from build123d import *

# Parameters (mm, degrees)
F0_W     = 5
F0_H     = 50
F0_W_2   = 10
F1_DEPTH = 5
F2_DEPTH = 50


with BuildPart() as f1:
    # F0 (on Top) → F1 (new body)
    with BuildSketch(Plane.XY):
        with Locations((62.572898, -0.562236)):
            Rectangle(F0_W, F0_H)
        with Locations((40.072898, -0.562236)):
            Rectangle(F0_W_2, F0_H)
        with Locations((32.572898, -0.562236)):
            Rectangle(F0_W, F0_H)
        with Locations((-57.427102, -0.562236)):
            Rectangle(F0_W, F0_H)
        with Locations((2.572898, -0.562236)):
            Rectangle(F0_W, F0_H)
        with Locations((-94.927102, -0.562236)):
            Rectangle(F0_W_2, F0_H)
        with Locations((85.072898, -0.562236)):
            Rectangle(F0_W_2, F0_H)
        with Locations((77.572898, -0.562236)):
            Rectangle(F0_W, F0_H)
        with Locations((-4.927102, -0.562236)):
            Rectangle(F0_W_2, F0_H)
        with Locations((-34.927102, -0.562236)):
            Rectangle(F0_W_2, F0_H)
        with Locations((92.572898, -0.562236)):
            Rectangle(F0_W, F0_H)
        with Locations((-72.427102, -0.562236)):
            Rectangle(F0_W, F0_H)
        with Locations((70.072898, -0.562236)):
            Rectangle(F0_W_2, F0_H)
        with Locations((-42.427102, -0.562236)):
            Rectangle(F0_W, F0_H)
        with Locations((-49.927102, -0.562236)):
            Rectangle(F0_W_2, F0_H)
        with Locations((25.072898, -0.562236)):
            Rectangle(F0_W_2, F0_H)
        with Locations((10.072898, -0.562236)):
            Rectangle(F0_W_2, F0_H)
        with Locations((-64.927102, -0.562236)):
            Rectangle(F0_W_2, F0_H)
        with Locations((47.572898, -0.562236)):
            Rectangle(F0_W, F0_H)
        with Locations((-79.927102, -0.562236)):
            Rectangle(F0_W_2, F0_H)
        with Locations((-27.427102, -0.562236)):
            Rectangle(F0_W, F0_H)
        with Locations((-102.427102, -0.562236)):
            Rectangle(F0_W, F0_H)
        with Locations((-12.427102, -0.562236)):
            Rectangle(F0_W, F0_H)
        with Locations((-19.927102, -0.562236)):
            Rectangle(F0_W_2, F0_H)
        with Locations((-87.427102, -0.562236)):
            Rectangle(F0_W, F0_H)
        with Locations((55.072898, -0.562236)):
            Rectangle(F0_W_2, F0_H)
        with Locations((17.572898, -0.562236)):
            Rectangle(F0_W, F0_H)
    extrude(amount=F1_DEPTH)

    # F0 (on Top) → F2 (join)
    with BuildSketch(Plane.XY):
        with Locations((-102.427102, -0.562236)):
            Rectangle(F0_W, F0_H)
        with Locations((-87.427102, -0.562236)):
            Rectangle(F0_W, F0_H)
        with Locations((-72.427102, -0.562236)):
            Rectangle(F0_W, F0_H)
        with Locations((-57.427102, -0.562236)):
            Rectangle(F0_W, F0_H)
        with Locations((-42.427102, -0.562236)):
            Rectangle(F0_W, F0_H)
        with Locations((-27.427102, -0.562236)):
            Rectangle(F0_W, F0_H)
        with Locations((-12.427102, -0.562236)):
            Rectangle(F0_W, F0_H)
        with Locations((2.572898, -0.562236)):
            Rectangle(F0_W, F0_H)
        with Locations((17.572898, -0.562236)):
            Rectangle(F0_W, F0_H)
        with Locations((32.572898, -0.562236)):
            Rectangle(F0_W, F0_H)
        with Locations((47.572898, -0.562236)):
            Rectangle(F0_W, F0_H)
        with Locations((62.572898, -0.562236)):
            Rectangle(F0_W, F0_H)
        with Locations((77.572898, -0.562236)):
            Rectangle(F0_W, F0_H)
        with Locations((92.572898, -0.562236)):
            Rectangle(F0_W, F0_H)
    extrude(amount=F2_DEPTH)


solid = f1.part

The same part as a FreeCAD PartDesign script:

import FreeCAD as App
import Part
import Sketcher
from FreeCAD import Vector

doc = App.newDocument("Part")
params = doc.addObject("Spreadsheet::Sheet", "Params")
for row, (alias, value) in enumerate([
    ("sketch1_width", "200 mm"),
    ("sketch1_height", "50 mm"),
    ("pad1_length", "5 mm"),
    ("sketch2_width", "5 mm"),
    ("sketch2_height", "50 mm"),
    ("pad2_length", "50 mm"),
], start=1):
    params.set(f"A{row}", alias)
    params.set(f"B{row}", "=" + value)
    params.setAlias(f"B{row}", alias)

body = doc.addObject("PartDesign::Body", "Body")

# Sketch on XY plane
sketch1 = doc.addObject("Sketcher::SketchObject", "Sketch")
body.addObject(sketch1)
sketch1.AttachmentSupport = (doc.XY_Plane, [""])
sketch1.MapMode = "FlatFace"
sketch1.addGeometry(Part.LineSegment(Vector(95.072898, -25.562236, 0), Vector(95.072898, 24.437764, 0)), False)
sketch1.addGeometry(Part.LineSegment(Vector(95.072898, 24.437764, 0), Vector(-104.927102, 24.437764, 0)), False)
sketch1.addGeometry(Part.LineSegment(Vector(-104.927102, 24.437764, 0), Vector(-104.927102, -25.562236, 0)), False)
sketch1.addGeometry(Part.LineSegment(Vector(-104.927102, -25.562236, 0), Vector(95.072898, -25.562236, 0)), False)
sketch1.addConstraint(Sketcher.Constraint("Coincident", 0, 2, 1, 1))
sketch1.addConstraint(Sketcher.Constraint("Coincident", 1, 2, 2, 1))
sketch1.addConstraint(Sketcher.Constraint("Coincident", 2, 2, 3, 1))
sketch1.addConstraint(Sketcher.Constraint("Coincident", 3, 2, 0, 1))
sketch1.addConstraint(Sketcher.Constraint("Vertical", 0))
sketch1.addConstraint(Sketcher.Constraint("Horizontal", 1))
sketch1.addConstraint(Sketcher.Constraint("Vertical", 2))
sketch1.addConstraint(Sketcher.Constraint("Horizontal", 3))
sketch1.addConstraint(Sketcher.Constraint("DistanceX", 1, 2, 1, 1, 200.0))
sketch1.addConstraint(Sketcher.Constraint("DistanceY", 0, 1, 0, 2, 50.0))
sketch1.addConstraint(Sketcher.Constraint("DistanceX", -1, 1, 0, 2, 95.072898))
sketch1.addConstraint(Sketcher.Constraint("DistanceY", -1, 1, 0, 2, 24.437764))
sketch1.setExpression("Constraints[8]", "Params.sketch1_width")
sketch1.setExpression("Constraints[9]", "Params.sketch1_height")
pad1 = doc.addObject("PartDesign::Pad", "Pad")
body.addObject(pad1)
pad1.Profile = sketch1
pad1.setExpression("Length", "Params.pad1_length")

# Sketch on XY plane
sketch2 = doc.addObject("Sketcher::SketchObject", "Sketch001")
body.addObject(sketch2)
sketch2.AttachmentSupport = (doc.XY_Plane, [""])
sketch2.MapMode = "FlatFace"
sketch2.addGeometry(Part.LineSegment(Vector(-104.927102, 24.437764, 0), Vector(-104.927102, -25.562236, 0)), False)
sketch2.addGeometry(Part.LineSegment(Vector(-104.927102, -25.562236, 0), Vector(-99.927102, -25.562236, 0)), False)
sketch2.addGeometry(Part.LineSegment(Vector(-99.927102, -25.562236, 0), Vector(-99.927102, 24.437764, 0)), False)
sketch2.addGeometry(Part.LineSegment(Vector(-99.927102, 24.437764, 0), Vector(-104.927102, 24.437764, 0)), False)
sketch2.addGeometry(Part.LineSegment(Vector(-89.927102, 24.437764, 0), Vector(-89.927102, -25.562236, 0)), False)
sketch2.addGeometry(Part.LineSegment(Vector(-89.927102, -25.562236, 0), Vector(-84.927102, -25.562236, 0)), False)
sketch2.addGeometry(Part.LineSegment(Vector(-84.927102, -25.562236, 0), Vector(-84.927102, 24.437764, 0)), False)
sketch2.addGeometry(Part.LineSegment(Vector(-84.927102, 24.437764, 0), Vector(-89.927102, 24.437764, 0)), False)
sketch2.addGeometry(Part.LineSegment(Vector(-74.927102, 24.437764, 0), Vector(-74.927102, -25.562236, 0)), False)
sketch2.addGeometry(Part.LineSegment(Vector(-74.927102, -25.562236, 0), Vector(-69.927102, -25.562236, 0)), False)
sketch2.addGeometry(Part.LineSegment(Vector(-69.927102, -25.562236, 0), Vector(-69.927102, 24.437764, 0)), False)
sketch2.addGeometry(Part.LineSegment(Vector(-69.927102, 24.437764, 0), Vector(-74.927102, 24.437764, 0)), False)
sketch2.addGeometry(Part.LineSegment(Vector(-59.927102, 24.437764, 0), Vector(-59.927102, -25.562236, 0)), False)
sketch2.addGeometry(Part.LineSegment(Vector(-59.927102, -25.562236, 0), Vector(-54.927102, -25.562236, 0)), False)
sketch2.addGeometry(Part.LineSegment(Vector(-54.927102, -25.562236, 0), Vector(-54.927102, 24.437764, 0)), False)
sketch2.addGeometry(Part.LineSegment(Vector(-54.927102, 24.437764, 0), Vector(-59.927102, 24.437764, 0)), False)
sketch2.addGeometry(Part.LineSegment(Vector(-44.927102, 24.437764, 0), Vector(-44.927102, -25.562236, 0)), False)
sketch2.addGeometry(Part.LineSegment(Vector(-44.927102, -25.562236, 0), Vector(-39.927102, -25.562236, 0)), False)
sketch2.addGeometry(Part.LineSegment(Vector(-39.927102, -25.562236, 0), Vector(-39.927102, 24.437764, 0)), False)
sketch2.addGeometry(Part.LineSegment(Vector(-39.927102, 24.437764, 0), Vector(-44.927102, 24.437764, 0)), False)
sketch2.addGeometry(Part.LineSegment(Vector(-29.927102, 24.437764, 0), Vector(-29.927102, -25.562236, 0)), False)
sketch2.addGeometry(Part.LineSegment(Vector(-29.927102, -25.562236, 0), Vector(-24.927102, -25.562236, 0)), False)
sketch2.addGeometry(Part.LineSegment(Vector(-24.927102, -25.562236, 0), Vector(-24.927102, 24.437764, 0)), False)
sketch2.addGeometry(Part.LineSegment(Vector(-24.927102, 24.437764, 0), Vector(-29.927102, 24.437764, 0)), False)
sketch2.addGeometry(Part.LineSegment(Vector(-14.927102, 24.437764, 0), Vector(-14.927102, -25.562236, 0)), False)
sketch2.addGeometry(Part.LineSegment(Vector(-14.927102, -25.562236, 0), Vector(-9.927102, -25.562236, 0)), False)
sketch2.addGeometry(Part.LineSegment(Vector(-9.927102, -25.562236, 0), Vector(-9.927102, 24.437764, 0)), False)
sketch2.addGeometry(Part.LineSegment(Vector(-9.927102, 24.437764, 0), Vector(-14.927102, 24.437764, 0)), False)
sketch2.addGeometry(Part.LineSegment(Vector(0.072898, 24.437764, 0), Vector(0.072898, -25.562236, 0)), False)
sketch2.addGeometry(Part.LineSegment(Vector(0.072898, -25.562236, 0), Vector(5.072898, -25.562236, 0)), False)
sketch2.addGeometry(Part.LineSegment(Vector(5.072898, -25.562236, 0), Vector(5.072898, 24.437764, 0)), False)
sketch2.addGeometry(Part.LineSegment(Vector(5.072898, 24.437764, 0), Vector(0.072898, 24.437764, 0)), False)
sketch2.addGeometry(Part.LineSegment(Vector(15.072898, 24.437764, 0), Vector(15.072898, -25.562236, 0)), False)
sketch2.addGeometry(Part.LineSegment(Vector(15.072898, -25.562236, 0), Vector(20.072898, -25.562236, 0)), False)
sketch2.addGeometry(Part.LineSegment(Vector(20.072898, -25.562236, 0), Vector(20.072898, 24.437764, 0)), False)
sketch2.addGeometry(Part.LineSegment(Vector(20.072898, 24.437764, 0), Vector(15.072898, 24.437764, 0)), False)
sketch2.addGeometry(Part.LineSegment(Vector(30.072898, 24.437764, 0), Vector(30.072898, -25.562236, 0)), False)
sketch2.addGeometry(Part.LineSegment(Vector(30.072898, -25.562236, 0), Vector(35.072898, -25.562236, 0)), False)
sketch2.addGeometry(Part.LineSegment(Vector(35.072898, -25.562236, 0), Vector(35.072898, 24.437764, 0)), False)
sketch2.addGeometry(Part.LineSegment(Vector(35.072898, 24.437764, 0), Vector(30.072898, 24.437764, 0)), False)
sketch2.addGeometry(Part.LineSegment(Vector(45.072898, 24.437764, 0), Vector(45.072898, -25.562236, 0)), False)
sketch2.addGeometry(Part.LineSegment(Vector(45.072898, -25.562236, 0), Vector(50.072898, -25.562236, 0)), False)
sketch2.addGeometry(Part.LineSegment(Vector(50.072898, -25.562236, 0), Vector(50.072898, 24.437764, 0)), False)
sketch2.addGeometry(Part.LineSegment(Vector(50.072898, 24.437764, 0), Vector(45.072898, 24.437764, 0)), False)
sketch2.addGeometry(Part.LineSegment(Vector(60.072898, 24.437764, 0), Vector(60.072898, -25.562236, 0)), False)
sketch2.addGeometry(Part.LineSegment(Vector(60.072898, -25.562236, 0), Vector(65.072898, -25.562236, 0)), False)
sketch2.addGeometry(Part.LineSegment(Vector(65.072898, -25.562236, 0), Vector(65.072898, 24.437764, 0)), False)
sketch2.addGeometry(Part.LineSegment(Vector(65.072898, 24.437764, 0), Vector(60.072898, 24.437764, 0)), False)
sketch2.addGeometry(Part.LineSegment(Vector(75.072898, 24.437764, 0), Vector(75.072898, -25.562236, 0)), False)
sketch2.addGeometry(Part.LineSegment(Vector(75.072898, -25.562236, 0), Vector(80.072898, -25.562236, 0)), False)
sketch2.addGeometry(Part.LineSegment(Vector(80.072898, -25.562236, 0), Vector(80.072898, 24.437764, 0)), False)
sketch2.addGeometry(Part.LineSegment(Vector(80.072898, 24.437764, 0), Vector(75.072898, 24.437764, 0)), False)
sketch2.addGeometry(Part.LineSegment(Vector(90.072898, 24.437764, 0), Vector(90.072898, -25.562236, 0)), False)
sketch2.addGeometry(Part.LineSegment(Vector(90.072898, -25.562236, 0), Vector(95.072898, -25.562236, 0)), False)
sketch2.addGeometry(Part.LineSegment(Vector(95.072898, -25.562236, 0), Vector(95.072898, 24.437764, 0)), False)
sketch2.addGeometry(Part.LineSegment(Vector(95.072898, 24.437764, 0), Vector(90.072898, 24.437764, 0)), False)
sketch2.addConstraint(Sketcher.Constraint("Coincident", 0, 2, 1, 1))
sketch2.addConstraint(Sketcher.Constraint("Coincident", 1, 2, 2, 1))
sketch2.addConstraint(Sketcher.Constraint("Coincident", 2, 2, 3, 1))
sketch2.addConstraint(Sketcher.Constraint("Coincident", 3, 2, 0, 1))
sketch2.addConstraint(Sketcher.Constraint("Coincident", 4, 2, 5, 1))
sketch2.addConstraint(Sketcher.Constraint("Coincident", 5, 2, 6, 1))
sketch2.addConstraint(Sketcher.Constraint("Coincident", 6, 2, 7, 1))
sketch2.addConstraint(Sketcher.Constraint("Coincident", 7, 2, 4, 1))
sketch2.addConstraint(Sketcher.Constraint("Coincident", 8, 2, 9, 1))
sketch2.addConstraint(Sketcher.Constraint("Coincident", 9, 2, 10, 1))
sketch2.addConstraint(Sketcher.Constraint("Coincident", 10, 2, 11, 1))
sketch2.addConstraint(Sketcher.Constraint("Coincident", 11, 2, 8, 1))
sketch2.addConstraint(Sketcher.Constraint("Coincident", 12, 2, 13, 1))
sketch2.addConstraint(Sketcher.Constraint("Coincident", 13, 2, 14, 1))
sketch2.addConstraint(Sketcher.Constraint("Coincident", 14, 2, 15, 1))
sketch2.addConstraint(Sketcher.Constraint("Coincident", 15, 2, 12, 1))
sketch2.addConstraint(Sketcher.Constraint("Coincident", 16, 2, 17, 1))
sketch2.addConstraint(Sketcher.Constraint("Coincident", 17, 2, 18, 1))
sketch2.addConstraint(Sketcher.Constraint("Coincident", 18, 2, 19, 1))
sketch2.addConstraint(Sketcher.Constraint("Coincident", 19, 2, 16, 1))
sketch2.addConstraint(Sketcher.Constraint("Coincident", 20, 2, 21, 1))
sketch2.addConstraint(Sketcher.Constraint("Coincident", 21, 2, 22, 1))
sketch2.addConstraint(Sketcher.Constraint("Coincident", 22, 2, 23, 1))
sketch2.addConstraint(Sketcher.Constraint("Coincident", 23, 2, 20, 1))
sketch2.addConstraint(Sketcher.Constraint("Coincident", 24, 2, 25, 1))
sketch2.addConstraint(Sketcher.Constraint("Coincident", 25, 2, 26, 1))
sketch2.addConstraint(Sketcher.Constraint("Coincident", 26, 2, 27, 1))
sketch2.addConstraint(Sketcher.Constraint("Coincident", 27, 2, 24, 1))
sketch2.addConstraint(Sketcher.Constraint("Coincident", 28, 2, 29, 1))
sketch2.addConstraint(Sketcher.Constraint("Coincident", 29, 2, 30, 1))
sketch2.addConstraint(Sketcher.Constraint("Coincident", 30, 2, 31, 1))
sketch2.addConstraint(Sketcher.Constraint("Coincident", 31, 2, 28, 1))
sketch2.addConstraint(Sketcher.Constraint("Coincident", 32, 2, 33, 1))
sketch2.addConstraint(Sketcher.Constraint("Coincident", 33, 2, 34, 1))
sketch2.addConstraint(Sketcher.Constraint("Coincident", 34, 2, 35, 1))
sketch2.addConstraint(Sketcher.Constraint("Coincident", 35, 2, 32, 1))
sketch2.addConstraint(Sketcher.Constraint("Coincident", 36, 2, 37, 1))
sketch2.addConstraint(Sketcher.Constraint("Coincident", 37, 2, 38, 1))
sketch2.addConstraint(Sketcher.Constraint("Coincident", 38, 2, 39, 1))
sketch2.addConstraint(Sketcher.Constraint("Coincident", 39, 2, 36, 1))
sketch2.addConstraint(Sketcher.Constraint("Coincident", 40, 2, 41, 1))
sketch2.addConstraint(Sketcher.Constraint("Coincident", 41, 2, 42, 1))
sketch2.addConstraint(Sketcher.Constraint("Coincident", 42, 2, 43, 1))
sketch2.addConstraint(Sketcher.Constraint("Coincident", 43, 2, 40, 1))
sketch2.addConstraint(Sketcher.Constraint("Coincident", 44, 2, 45, 1))
sketch2.addConstraint(Sketcher.Constraint("Coincident", 45, 2, 46, 1))
sketch2.addConstraint(Sketcher.Constraint("Coincident", 46, 2, 47, 1))
sketch2.addConstraint(Sketcher.Constraint("Coincident", 47, 2, 44, 1))
sketch2.addConstraint(Sketcher.Constraint("Coincident", 48, 2, 49, 1))
sketch2.addConstraint(Sketcher.Constraint("Coincident", 49, 2, 50, 1))
sketch2.addConstraint(Sketcher.Constraint("Coincident", 50, 2, 51, 1))
sketch2.addConstraint(Sketcher.Constraint("Coincident", 51, 2, 48, 1))
sketch2.addConstraint(Sketcher.Constraint("Coincident", 52, 2, 53, 1))
sketch2.addConstraint(Sketcher.Constraint("Coincident", 53, 2, 54, 1))
sketch2.addConstraint(Sketcher.Constraint("Coincident", 54, 2, 55, 1))
sketch2.addConstraint(Sketcher.Constraint("Coincident", 55, 2, 52, 1))
sketch2.addConstraint(Sketcher.Constraint("Vertical", 0))
sketch2.addConstraint(Sketcher.Constraint("Horizontal", 1))
sketch2.addConstraint(Sketcher.Constraint("Vertical", 2))
sketch2.addConstraint(Sketcher.Constraint("Horizontal", 3))
sketch2.addConstraint(Sketcher.Constraint("Vertical", 4))
sketch2.addConstraint(Sketcher.Constraint("Horizontal", 5))
sketch2.addConstraint(Sketcher.Constraint("Vertical", 6))
sketch2.addConstraint(Sketcher.Constraint("Horizontal", 7))
sketch2.addConstraint(Sketcher.Constraint("Vertical", 8))
sketch2.addConstraint(Sketcher.Constraint("Horizontal", 9))
sketch2.addConstraint(Sketcher.Constraint("Vertical", 10))
sketch2.addConstraint(Sketcher.Constraint("Horizontal", 11))
sketch2.addConstraint(Sketcher.Constraint("Vertical", 12))
sketch2.addConstraint(Sketcher.Constraint("Horizontal", 13))
sketch2.addConstraint(Sketcher.Constraint("Vertical", 14))
sketch2.addConstraint(Sketcher.Constraint("Horizontal", 15))
sketch2.addConstraint(Sketcher.Constraint("Vertical", 16))
sketch2.addConstraint(Sketcher.Constraint("Horizontal", 17))
sketch2.addConstraint(Sketcher.Constraint("Vertical", 18))
sketch2.addConstraint(Sketcher.Constraint("Horizontal", 19))
sketch2.addConstraint(Sketcher.Constraint("Vertical", 20))
sketch2.addConstraint(Sketcher.Constraint("Horizontal", 21))
sketch2.addConstraint(Sketcher.Constraint("Vertical", 22))
sketch2.addConstraint(Sketcher.Constraint("Horizontal", 23))
sketch2.addConstraint(Sketcher.Constraint("Vertical", 24))
sketch2.addConstraint(Sketcher.Constraint("Horizontal", 25))
sketch2.addConstraint(Sketcher.Constraint("Vertical", 26))
sketch2.addConstraint(Sketcher.Constraint("Horizontal", 27))
sketch2.addConstraint(Sketcher.Constraint("Vertical", 28))
sketch2.addConstraint(Sketcher.Constraint("Horizontal", 29))
sketch2.addConstraint(Sketcher.Constraint("Vertical", 30))
sketch2.addConstraint(Sketcher.Constraint("Horizontal", 31))
sketch2.addConstraint(Sketcher.Constraint("Vertical", 32))
sketch2.addConstraint(Sketcher.Constraint("Horizontal", 33))
sketch2.addConstraint(Sketcher.Constraint("Vertical", 34))
sketch2.addConstraint(Sketcher.Constraint("Horizontal", 35))
sketch2.addConstraint(Sketcher.Constraint("Vertical", 36))
sketch2.addConstraint(Sketcher.Constraint("Horizontal", 37))
sketch2.addConstraint(Sketcher.Constraint("Vertical", 38))
sketch2.addConstraint(Sketcher.Constraint("Horizontal", 39))
sketch2.addConstraint(Sketcher.Constraint("Vertical", 40))
sketch2.addConstraint(Sketcher.Constraint("Horizontal", 41))
sketch2.addConstraint(Sketcher.Constraint("Vertical", 42))
sketch2.addConstraint(Sketcher.Constraint("Horizontal", 43))
sketch2.addConstraint(Sketcher.Constraint("Vertical", 44))
sketch2.addConstraint(Sketcher.Constraint("Horizontal", 45))
sketch2.addConstraint(Sketcher.Constraint("Vertical", 46))
sketch2.addConstraint(Sketcher.Constraint("Horizontal", 47))
sketch2.addConstraint(Sketcher.Constraint("Vertical", 48))
sketch2.addConstraint(Sketcher.Constraint("Horizontal", 49))
sketch2.addConstraint(Sketcher.Constraint("Vertical", 50))
sketch2.addConstraint(Sketcher.Constraint("Horizontal", 51))
sketch2.addConstraint(Sketcher.Constraint("Vertical", 52))
sketch2.addConstraint(Sketcher.Constraint("Horizontal", 53))
sketch2.addConstraint(Sketcher.Constraint("Vertical", 54))
sketch2.addConstraint(Sketcher.Constraint("Horizontal", 55))
sketch2.addConstraint(Sketcher.Constraint("Horizontal", 1, 2, 4, 2))
sketch2.addConstraint(Sketcher.Constraint("Horizontal", 3, 2, 6, 2))
sketch2.addConstraint(Sketcher.Constraint("Horizontal", 5, 2, 8, 2))
sketch2.addConstraint(Sketcher.Constraint("Horizontal", 7, 2, 10, 2))
sketch2.addConstraint(Sketcher.Constraint("Horizontal", 9, 2, 12, 2))
sketch2.addConstraint(Sketcher.Constraint("Horizontal", 11, 2, 14, 2))
sketch2.addConstraint(Sketcher.Constraint("Horizontal", 13, 2, 16, 2))
sketch2.addConstraint(Sketcher.Constraint("Horizontal", 15, 2, 18, 2))
sketch2.addConstraint(Sketcher.Constraint("Horizontal", 17, 2, 20, 2))
sketch2.addConstraint(Sketcher.Constraint("Horizontal", 19, 2, 22, 2))
sketch2.addConstraint(Sketcher.Constraint("Horizontal", 21, 2, 24, 2))
sketch2.addConstraint(Sketcher.Constraint("Horizontal", 23, 2, 26, 2))
sketch2.addConstraint(Sketcher.Constraint("Horizontal", 25, 2, 28, 2))
sketch2.addConstraint(Sketcher.Constraint("Horizontal", 27, 2, 30, 2))
sketch2.addConstraint(Sketcher.Constraint("Horizontal", 29, 2, 32, 2))
sketch2.addConstraint(Sketcher.Constraint("Horizontal", 31, 2, 34, 2))
sketch2.addConstraint(Sketcher.Constraint("Horizontal", 33, 2, 36, 2))
sketch2.addConstraint(Sketcher.Constraint("Horizontal", 35, 2, 38, 2))
sketch2.addConstraint(Sketcher.Constraint("Horizontal", 37, 2, 40, 2))
sketch2.addConstraint(Sketcher.Constraint("Horizontal", 39, 2, 42, 2))
sketch2.addConstraint(Sketcher.Constraint("Horizontal", 41, 2, 44, 2))
sketch2.addConstraint(Sketcher.Constraint("Horizontal", 43, 2, 46, 2))
sketch2.addConstraint(Sketcher.Constraint("Horizontal", 45, 2, 48, 2))
sketch2.addConstraint(Sketcher.Constraint("Horizontal", 47, 2, 50, 2))
sketch2.addConstraint(Sketcher.Constraint("Horizontal", 49, 2, 52, 2))
sketch2.addConstraint(Sketcher.Constraint("Horizontal", 51, 2, 54, 2))
sketch2.addConstraint(Sketcher.Constraint("Equal", 3, 5))
sketch2.addConstraint(Sketcher.Constraint("Equal", 7, 9))
sketch2.addConstraint(Sketcher.Constraint("Equal", 11, 13))
sketch2.addConstraint(Sketcher.Constraint("Equal", 15, 17))
sketch2.addConstraint(Sketcher.Constraint("Equal", 19, 21))
sketch2.addConstraint(Sketcher.Constraint("Equal", 23, 25))
sketch2.addConstraint(Sketcher.Constraint("Equal", 27, 29))
sketch2.addConstraint(Sketcher.Constraint("Equal", 31, 33))
sketch2.addConstraint(Sketcher.Constraint("Equal", 35, 37))
sketch2.addConstraint(Sketcher.Constraint("Equal", 39, 41))
sketch2.addConstraint(Sketcher.Constraint("Equal", 43, 45))
sketch2.addConstraint(Sketcher.Constraint("Equal", 47, 49))
sketch2.addConstraint(Sketcher.Constraint("Equal", 51, 53))
sketch2.addConstraint(Sketcher.Constraint("DistanceX", 1, 1, 1, 2, 5.0))
sketch2.addConstraint(Sketcher.Constraint("DistanceY", 0, 2, 0, 1, 50.0))
sketch2.addConstraint(Sketcher.Constraint("DistanceX", 1, 2, 4, 2, 10.0))
sketch2.addConstraint(Sketcher.Constraint("DistanceX", 5, 2, 8, 2, 10.0))
sketch2.addConstraint(Sketcher.Constraint("DistanceX", 9, 2, 12, 2, 10.0))
sketch2.addConstraint(Sketcher.Constraint("DistanceX", 13, 2, 16, 2, 10.0))
sketch2.addConstraint(Sketcher.Constraint("DistanceX", 17, 2, 20, 2, 10.0))
sketch2.addConstraint(Sketcher.Constraint("DistanceX", 21, 2, 24, 2, 10.0))
sketch2.addConstraint(Sketcher.Constraint("DistanceX", 25, 2, 28, 2, 10.0))
sketch2.addConstraint(Sketcher.Constraint("DistanceX", 29, 2, 32, 2, 10.0))
sketch2.addConstraint(Sketcher.Constraint("DistanceX", 33, 2, 36, 2, 10.0))
sketch2.addConstraint(Sketcher.Constraint("DistanceX", 37, 2, 40, 2, 10.0))
sketch2.addConstraint(Sketcher.Constraint("DistanceX", 41, 2, 44, 2, 10.0))
sketch2.addConstraint(Sketcher.Constraint("DistanceX", 45, 2, 48, 2, 10.0))
sketch2.addConstraint(Sketcher.Constraint("DistanceX", 49, 2, 52, 2, 10.0))
sketch2.addConstraint(Sketcher.Constraint("DistanceX", 12, 2, -1, 1, 59.927102))
sketch2.addConstraint(Sketcher.Constraint("DistanceY", 0, 2, -1, 1, 25.562236))
sketch2.setExpression("Constraints[151]", "Params.sketch2_width")
sketch2.setExpression("Constraints[152]", "Params.sketch2_height")
pad2 = doc.addObject("PartDesign::Pad", "Pad001")
body.addObject(pad2)
pad2.Profile = sketch2
pad2.setExpression("Length", "Params.pad2_length")

doc.recompute()
